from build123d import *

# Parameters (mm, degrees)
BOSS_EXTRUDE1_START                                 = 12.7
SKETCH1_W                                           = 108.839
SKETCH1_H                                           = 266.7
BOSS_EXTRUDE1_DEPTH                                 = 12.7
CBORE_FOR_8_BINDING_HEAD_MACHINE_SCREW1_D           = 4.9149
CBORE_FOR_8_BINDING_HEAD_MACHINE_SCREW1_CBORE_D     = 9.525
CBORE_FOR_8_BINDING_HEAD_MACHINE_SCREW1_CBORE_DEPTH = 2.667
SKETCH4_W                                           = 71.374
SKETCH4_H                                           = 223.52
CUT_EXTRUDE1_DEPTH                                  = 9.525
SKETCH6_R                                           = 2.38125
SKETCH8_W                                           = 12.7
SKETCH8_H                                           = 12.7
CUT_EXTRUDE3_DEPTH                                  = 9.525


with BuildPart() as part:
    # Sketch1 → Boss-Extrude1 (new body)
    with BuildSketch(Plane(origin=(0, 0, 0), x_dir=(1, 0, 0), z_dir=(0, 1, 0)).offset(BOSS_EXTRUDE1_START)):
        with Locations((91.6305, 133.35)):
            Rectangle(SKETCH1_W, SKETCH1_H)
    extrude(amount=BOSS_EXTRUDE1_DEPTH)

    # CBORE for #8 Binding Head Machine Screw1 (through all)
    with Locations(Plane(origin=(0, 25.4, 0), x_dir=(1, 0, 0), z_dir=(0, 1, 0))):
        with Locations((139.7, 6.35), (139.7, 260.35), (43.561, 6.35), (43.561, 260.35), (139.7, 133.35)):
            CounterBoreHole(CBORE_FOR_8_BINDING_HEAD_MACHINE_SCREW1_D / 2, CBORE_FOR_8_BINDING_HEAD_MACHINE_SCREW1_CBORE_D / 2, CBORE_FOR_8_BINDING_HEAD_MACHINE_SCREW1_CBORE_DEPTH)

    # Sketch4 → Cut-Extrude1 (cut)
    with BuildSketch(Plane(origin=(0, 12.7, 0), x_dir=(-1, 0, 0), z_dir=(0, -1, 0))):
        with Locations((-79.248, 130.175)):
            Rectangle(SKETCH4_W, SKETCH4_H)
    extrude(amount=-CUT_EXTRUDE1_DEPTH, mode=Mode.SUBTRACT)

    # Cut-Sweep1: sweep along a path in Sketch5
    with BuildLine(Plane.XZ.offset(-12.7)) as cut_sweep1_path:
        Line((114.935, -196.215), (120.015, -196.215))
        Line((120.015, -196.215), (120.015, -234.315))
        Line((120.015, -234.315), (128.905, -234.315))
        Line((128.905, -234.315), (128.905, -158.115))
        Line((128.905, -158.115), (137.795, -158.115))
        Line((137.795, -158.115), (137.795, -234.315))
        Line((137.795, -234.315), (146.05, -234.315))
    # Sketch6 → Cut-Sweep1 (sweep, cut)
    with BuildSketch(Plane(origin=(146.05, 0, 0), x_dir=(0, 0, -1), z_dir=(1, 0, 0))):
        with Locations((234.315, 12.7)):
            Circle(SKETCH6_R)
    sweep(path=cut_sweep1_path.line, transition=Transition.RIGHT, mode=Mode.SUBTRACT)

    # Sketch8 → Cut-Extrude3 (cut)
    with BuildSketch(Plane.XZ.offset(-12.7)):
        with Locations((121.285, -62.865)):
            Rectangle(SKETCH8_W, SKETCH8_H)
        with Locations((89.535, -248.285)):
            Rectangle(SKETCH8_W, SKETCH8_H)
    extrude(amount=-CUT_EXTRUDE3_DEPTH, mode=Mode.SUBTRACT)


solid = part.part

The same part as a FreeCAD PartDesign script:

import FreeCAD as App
import Part
import Sketcher
Q = App.Units.Quantity


def add_polygon(sketch, points):
    """Adds a closed chain of lines whose ends are joined by coincident constraints."""
    first, n = sketch.GeometryCount, len(points)
    for a, b in zip(points, points[1:] + points[:1]):
        sketch.addGeometry(Part.LineSegment(App.Vector(*a, 0), App.Vector(*b, 0)), False)
    for i in range(n):
        sketch.addConstraint(Sketcher.Constraint("Coincident", first + i, 2, first + (i + 1) % n, 1))

doc = App.newDocument("Part")
body = doc.addObject("PartDesign::Body", "Body")

# Sketch on XZ plane
sketch1 = doc.addObject("Sketcher::SketchObject", "Sketch")
body.addObject(sketch1)
sketch1.AttachmentSupport = (doc.XZ_Plane, [""])
sketch1.MapMode = "FlatFace"
sketch1.AttachmentOffset = App.Placement(App.Vector(0, 0, -0.5 * 25.4), App.Rotation())
add_polygon(sketch1, [(37, -267), (37, 0), (146, 0), (146, -267)])  # lines 0-3
sketch1.addConstraint(Sketcher.Constraint("Vertical", 0))
sketch1.addConstraint(Sketcher.Constraint("Horizontal", 1))
sketch1.addConstraint(Sketcher.Constraint("Vertical", 2))
sketch1.addConstraint(Sketcher.Constraint("Horizontal", 3))
sketch1.addConstraint(Sketcher.Constraint("PointOnObject", 0, 2, -1))
sketch1.addConstraint(Sketcher.Constraint("DistanceY", 0, 1, 0, 2, Q("10.5 in")))
sketch1.addConstraint(Sketcher.Constraint("DistanceX", 1, 1, 1, 2, Q("4.285 in")))
sketch1.addConstraint(Sketcher.Constraint("DistanceX", -1, 1, 1, 2, Q("5.75 in")))
pad1 = doc.addObject("PartDesign::Pad", "Pad")
body.addObject(pad1)
pad1.Profile = sketch1
pad1.Length = Q("0.5 in")
pad1.Reversed = True

# Sketch on XZ plane
sketch2 = doc.addObject("Sketcher::SketchObject", "Sketch001")
body.addObject(sketch2)
sketch2.AttachmentSupport = (doc.XZ_Plane, [""])
sketch2.MapMode = "FlatFace"
sketch2.AttachmentOffset = App.Placement(App.Vector(0, 0, -1 * 25.4), App.Rotation())
sketch2.addGeometry(Part.Circle(App.Vector(139.7, -6.3, 0), App.Vector(0, 0, 1), 2.5), False)
sketch2.addGeometry(Part.Circle(App.Vector(139.7, -260.4, 0), App.Vector(0, 0, 1), 2.5), False)
sketch2.addGeometry(Part.Circle(App.Vector(43.6, -6.3, 0), App.Vector(0, 0, 1), 2.5), False)
sketch2.addGeometry(Part.Circle(App.Vector(43.6, -260.4, 0), App.Vector(0, 0, 1), 2.5), False)
sketch2.addGeometry(Part.Circle(App.Vector(139.7, -133.3, 0), App.Vector(0, 0, 1), 2.5), False)
sketch2.addConstraint(Sketcher.Constraint("Equal", 0, 1))
sketch2.addConstraint(Sketcher.Constraint("Equal", 1, 2))
sketch2.addConstraint(Sketcher.Constraint("Equal", 2, 3))
sketch2.addConstraint(Sketcher.Constraint("Equal", 3, 4))
sketch2.addConstraint(Sketcher.Constraint("Horizontal", 0, 3, 2, 3))
sketch2.addConstraint(Sketcher.Constraint("Horizontal", 1, 3, 3, 3))
sketch2.addConstraint(Sketcher.Constraint("Vertical", 0, 3, 1, 3))
sketch2.addConstraint(Sketcher.Constraint("Vertical", 2, 3, 3, 3))
sketch2.addConstraint(Sketcher.Constraint("Vertical", 1, 3, 4, 3))
sketch2.addConstraint(Sketcher.Constraint("DistanceY", 1, 3, 0, 3, Q("10 in")))
sketch2.addConstraint(Sketcher.Constraint("DistanceY", 4, 3, 0, 3, Q("5 in")))
sketch2.addConstraint(Sketcher.Constraint("Diameter", 0, Q("0.1935 in")))
sketch2.addConstraint(Sketcher.Constraint("DistanceX", -1, 1, 0, 3, Q("5.5 in")))
sketch2.addConstraint(Sketcher.Constraint("DistanceY", 0, 3, -1, 1, Q("0.25 in")))
sketch2.addConstraint(Sketcher.Constraint("DistanceX", -1, 1, 2, 3, Q("1.715 in")))
doc.recompute()
hole = doc.addObject("PartDesign::Hole", "Hole")
body.addObject(hole)
hole.Profile = sketch2
hole.ThreadType = "None"
hole.Diameter = Q("0.1935 in")
hole.DepthType = "ThroughAll"
hole.HoleCutType = "Counterbore"
hole.HoleCutDiameter = Q("0.375 in")
hole.HoleCutDepth = Q("0.105 in")
hole.Reversed = True

# Sketch on XZ plane
sketch3 = doc.addObject("Sketcher::SketchObject", "Sketch002")
body.addObject(sketch3)
sketch3.AttachmentSupport = (doc.XZ_Plane, [""])
sketch3.MapMode = "FlatFace"
sketch3.AttachmentOffset = App.Placement(App.Vector(0, 0, -0.5 * 25.4), App.Rotation())
add_polygon(sketch3, [(115, -242), (115, -18), (44, -18), (44, -242)])  # lines 0-3
sketch3.addConstraint(Sketcher.Constraint("Vertical", 0))
sketch3.addConstraint(Sketcher.Constraint("Horizontal", 1))
sketch3.addConstraint(Sketcher.Constraint("Vertical", 2))
sketch3.addConstraint(Sketcher.Constraint("Horizontal", 3))
sketch3.addConstraint(Sketcher.Constraint("DistanceY", 0, 1, 0, 2, Q("8.8 in")))
sketch3.addConstraint(Sketcher.Constraint("DistanceX", 1, 2, 1, 1, Q("2.81 in")))
sketch3.addConstraint(Sketcher.Constraint("DistanceX", -1, 1, 0, 2, Q("4.525 in")))
sketch3.addConstraint(Sketcher.Constraint("DistanceY", 0, 2, -1, 1, Q("0.725 in")))
pocket1 = doc.addObject("PartDesign::Pocket", "Pocket")
body.addObject(pocket1)
pocket1.Profile = sketch3
pocket1.Length = Q("0.375 in")

# Sketch on YZ plane
sketch4 = doc.addObject("Sketcher::SketchObject", "Sketch003")
body.addObject(sketch4)
sketch4.AttachmentSupport = (doc.YZ_Plane, [""])
sketch4.MapMode = "FlatFace"
sketch4.AttachmentOffset = App.Placement(App.Vector(0, 0, 5.75 * 25.4), App.Rotation())
sketch4.addGeometry(Part.Circle(App.Vector(12.7, -234.3, 0), App.Vector(0, 0, 1), 2.4), False)
sketch4.addConstraint(Sketcher.Constraint("Diameter", 0, Q("0.1875 in")))
sketch4.addConstraint(Sketcher.Constraint("DistanceX", -1, 1, 0, 3, Q("0.5 in")))
sketch4.addConstraint(Sketcher.Constraint("DistanceY", 0, 3, -1, 1, Q("9.225 in")))

# Sketch on XZ plane
sketch5 = doc.addObject("Sketcher::SketchObject", "Sketch004")
body.addObject(sketch5)
sketch5.AttachmentSupport = (doc.XZ_Plane, [""])
sketch5.MapMode = "FlatFace"
sketch5.AttachmentOffset = App.Placement(App.Vector(0, 0, -0.5 * 25.4), App.Rotation())
sketch5.addGeometry(Part.LineSegment(App.Vector(115, -196, 0), App.Vector(120, -196, 0)), False)
sketch5.addGeometry(Part.LineSegment(App.Vector(120, -196, 0), App.Vector(120, -234, 0)), False)
sketch5.addGeometry(Part.LineSegment(App.Vector(120, -234, 0), App.Vector(129, -234, 0)), False)
sketch5.addGeometry(Part.LineSegment(App.Vector(129, -234, 0), App.Vector(129, -158, 0)), False)
sketch5.addGeometry(Part.LineSegment(App.Vector(129, -158, 0), App.Vector(138, -158, 0)), False)
sketch5.addGeometry(Part.LineSegment(App.Vector(138, -158, 0), App.Vector(138, -234, 0)), False)
sketch5.addGeometry(Part.LineSegment(App.Vector(138, -234, 0), App.Vector(146, -234, 0)), False)
sketch5.addConstraint(Sketcher.Constraint("Coincident", 0, 2, 1, 1))
sketch5.addConstraint(Sketcher.Constraint("Coincident", 1, 2, 2, 1))
sketch5.addConstraint(Sketcher.Constraint("Coincident", 2, 2, 3, 1))
sketch5.addConstraint(Sketcher.Constraint("Coincident", 3, 2, 4, 1))
sketch5.addConstraint(Sketcher.Constraint("Coincident", 4, 2, 5, 1))
sketch5.addConstraint(Sketcher.Constraint("Coincident", 5, 2, 6, 1))
sketch5.addConstraint(Sketcher.Constraint("Horizontal", 0))
sketch5.addConstraint(Sketcher.Constraint("Vertical", 1))
sketch5.addConstraint(Sketcher.Constraint("Horizontal", 2))
sketch5.addConstraint(Sketcher.Constraint("Vertical", 3))
sketch5.addConstraint(Sketcher.Constraint("Horizontal", 4))
sketch5.addConstraint(Sketcher.Constraint("Vertical", 5))
sketch5.addConstraint(Sketcher.Constraint("Horizontal", 6))
sketch5.addConstraint(Sketcher.Constraint("Horizontal", 2, 2, 5, 2))
sketch5.addConstraint(Sketcher.Constraint("Equal", 2, 4))
sketch5.addConstraint(Sketcher.Constraint("DistanceY", 3, 1, 3, 2, Q("3 in")))
sketch5.addConstraint(Sketcher.Constraint("DistanceX", 0, 1, 0, 2, Q("0.2 in")))
sketch5.addConstraint(Sketcher.Constraint("DistanceY", 1, 2, 1, 1, Q("1.5 in")))
sketch5.addConstraint(Sketcher.Constraint("DistanceX", 2, 1, 2, 2, Q("0.35 in")))
sketch5.addConstraint(Sketcher.Constraint("DistanceX", 6, 1, 6, 2, Q("0.325 in")))
sketch5.addConstraint(Sketcher.Constraint("DistanceX", -1, 1, 6, 2, Q("5.75 in")))
sketch5.addConstraint(Sketcher.Constraint("DistanceY", 0, 1, -1, 1, Q("7.725 in")))
doc.recompute()

subtractivepipe = doc.addObject("PartDesign::SubtractivePipe", "SubtractivePipe")
body.addObject(subtractivepipe)
subtractivepipe.Profile = sketch4
subtractivepipe.Spine = (sketch5, ["Edge1", "Edge2", "Edge3", "Edge4", "Edge5", "Edge6", "Edge7"])
subtractivepipe.Transition = "Right corner"

# Sketch on XZ plane
sketch6 = doc.addObject("Sketcher::SketchObject", "Sketch005")
body.addObject(sketch6)
sketch6.AttachmentSupport = (doc.XZ_Plane, [""])
sketch6.MapMode = "FlatFace"
sketch6.AttachmentOffset = App.Placement(App.Vector(0, 0, -0.5 * 25.4), App.Rotation())
add_polygon(sketch6, [(115, -57), (115, -69), (128, -69), (128, -57)])  # lines 0-3
add_polygon(sketch6, [(83, -242), (83, -255), (96, -255), (96, -242)])  # lines 4-7
sketch6.addConstraint(Sketcher.Constraint("Vertical", 0))
sketch6.addConstraint(Sketcher.Constraint("Horizontal", 1))
sketch6.addConstraint(Sketcher.Constraint("Vertical", 2))
sketch6.addConstraint(Sketcher.Constraint("Horizontal", 3))
sketch6.addConstraint(Sketcher.Constraint("Vertical", 4))
sketch6.addConstraint(Sketcher.Constraint("Horizontal", 5))
sketch6.addConstraint(Sketcher.Constraint("Vertical", 6))
sketch6.addConstraint(Sketcher.Constraint("Horizontal", 7))
sketch6.addConstraint(Sketcher.Constraint("Equal", 3, 5))
sketch6.addConstraint(Sketcher.Constraint("Equal", 7, 0))
sketch6.addConstraint(Sketcher.Constraint("Equal", 2, 4))
sketch6.addConstraint(Sketcher.Constraint("DistanceX", 1, 1, 1, 2, Q("0.5 in")))
sketch6.addConstraint(Sketcher.Constraint("DistanceY", 4, 2, 0, 2, Q("7.3 in")))
sketch6.addConstraint(Sketcher.Constraint("DistanceX", 4, 2, 0, 2, Q("1.25 in")))
sketch6.addConstraint(Sketcher.Constraint("DistanceX", -1, 1, 0, 2, Q("4.525 in")))
sketch6.addConstraint(Sketcher.Constraint("DistanceY", 0, 2, -1, 1, Q("2.725 in")))
pocket2 = doc.addObject("PartDesign::Pocket", "Pocket001")
body.addObject(pocket2)
pocket2.Profile = sketch6
pocket2.Length = Q("0.375 in")

doc.recompute()
